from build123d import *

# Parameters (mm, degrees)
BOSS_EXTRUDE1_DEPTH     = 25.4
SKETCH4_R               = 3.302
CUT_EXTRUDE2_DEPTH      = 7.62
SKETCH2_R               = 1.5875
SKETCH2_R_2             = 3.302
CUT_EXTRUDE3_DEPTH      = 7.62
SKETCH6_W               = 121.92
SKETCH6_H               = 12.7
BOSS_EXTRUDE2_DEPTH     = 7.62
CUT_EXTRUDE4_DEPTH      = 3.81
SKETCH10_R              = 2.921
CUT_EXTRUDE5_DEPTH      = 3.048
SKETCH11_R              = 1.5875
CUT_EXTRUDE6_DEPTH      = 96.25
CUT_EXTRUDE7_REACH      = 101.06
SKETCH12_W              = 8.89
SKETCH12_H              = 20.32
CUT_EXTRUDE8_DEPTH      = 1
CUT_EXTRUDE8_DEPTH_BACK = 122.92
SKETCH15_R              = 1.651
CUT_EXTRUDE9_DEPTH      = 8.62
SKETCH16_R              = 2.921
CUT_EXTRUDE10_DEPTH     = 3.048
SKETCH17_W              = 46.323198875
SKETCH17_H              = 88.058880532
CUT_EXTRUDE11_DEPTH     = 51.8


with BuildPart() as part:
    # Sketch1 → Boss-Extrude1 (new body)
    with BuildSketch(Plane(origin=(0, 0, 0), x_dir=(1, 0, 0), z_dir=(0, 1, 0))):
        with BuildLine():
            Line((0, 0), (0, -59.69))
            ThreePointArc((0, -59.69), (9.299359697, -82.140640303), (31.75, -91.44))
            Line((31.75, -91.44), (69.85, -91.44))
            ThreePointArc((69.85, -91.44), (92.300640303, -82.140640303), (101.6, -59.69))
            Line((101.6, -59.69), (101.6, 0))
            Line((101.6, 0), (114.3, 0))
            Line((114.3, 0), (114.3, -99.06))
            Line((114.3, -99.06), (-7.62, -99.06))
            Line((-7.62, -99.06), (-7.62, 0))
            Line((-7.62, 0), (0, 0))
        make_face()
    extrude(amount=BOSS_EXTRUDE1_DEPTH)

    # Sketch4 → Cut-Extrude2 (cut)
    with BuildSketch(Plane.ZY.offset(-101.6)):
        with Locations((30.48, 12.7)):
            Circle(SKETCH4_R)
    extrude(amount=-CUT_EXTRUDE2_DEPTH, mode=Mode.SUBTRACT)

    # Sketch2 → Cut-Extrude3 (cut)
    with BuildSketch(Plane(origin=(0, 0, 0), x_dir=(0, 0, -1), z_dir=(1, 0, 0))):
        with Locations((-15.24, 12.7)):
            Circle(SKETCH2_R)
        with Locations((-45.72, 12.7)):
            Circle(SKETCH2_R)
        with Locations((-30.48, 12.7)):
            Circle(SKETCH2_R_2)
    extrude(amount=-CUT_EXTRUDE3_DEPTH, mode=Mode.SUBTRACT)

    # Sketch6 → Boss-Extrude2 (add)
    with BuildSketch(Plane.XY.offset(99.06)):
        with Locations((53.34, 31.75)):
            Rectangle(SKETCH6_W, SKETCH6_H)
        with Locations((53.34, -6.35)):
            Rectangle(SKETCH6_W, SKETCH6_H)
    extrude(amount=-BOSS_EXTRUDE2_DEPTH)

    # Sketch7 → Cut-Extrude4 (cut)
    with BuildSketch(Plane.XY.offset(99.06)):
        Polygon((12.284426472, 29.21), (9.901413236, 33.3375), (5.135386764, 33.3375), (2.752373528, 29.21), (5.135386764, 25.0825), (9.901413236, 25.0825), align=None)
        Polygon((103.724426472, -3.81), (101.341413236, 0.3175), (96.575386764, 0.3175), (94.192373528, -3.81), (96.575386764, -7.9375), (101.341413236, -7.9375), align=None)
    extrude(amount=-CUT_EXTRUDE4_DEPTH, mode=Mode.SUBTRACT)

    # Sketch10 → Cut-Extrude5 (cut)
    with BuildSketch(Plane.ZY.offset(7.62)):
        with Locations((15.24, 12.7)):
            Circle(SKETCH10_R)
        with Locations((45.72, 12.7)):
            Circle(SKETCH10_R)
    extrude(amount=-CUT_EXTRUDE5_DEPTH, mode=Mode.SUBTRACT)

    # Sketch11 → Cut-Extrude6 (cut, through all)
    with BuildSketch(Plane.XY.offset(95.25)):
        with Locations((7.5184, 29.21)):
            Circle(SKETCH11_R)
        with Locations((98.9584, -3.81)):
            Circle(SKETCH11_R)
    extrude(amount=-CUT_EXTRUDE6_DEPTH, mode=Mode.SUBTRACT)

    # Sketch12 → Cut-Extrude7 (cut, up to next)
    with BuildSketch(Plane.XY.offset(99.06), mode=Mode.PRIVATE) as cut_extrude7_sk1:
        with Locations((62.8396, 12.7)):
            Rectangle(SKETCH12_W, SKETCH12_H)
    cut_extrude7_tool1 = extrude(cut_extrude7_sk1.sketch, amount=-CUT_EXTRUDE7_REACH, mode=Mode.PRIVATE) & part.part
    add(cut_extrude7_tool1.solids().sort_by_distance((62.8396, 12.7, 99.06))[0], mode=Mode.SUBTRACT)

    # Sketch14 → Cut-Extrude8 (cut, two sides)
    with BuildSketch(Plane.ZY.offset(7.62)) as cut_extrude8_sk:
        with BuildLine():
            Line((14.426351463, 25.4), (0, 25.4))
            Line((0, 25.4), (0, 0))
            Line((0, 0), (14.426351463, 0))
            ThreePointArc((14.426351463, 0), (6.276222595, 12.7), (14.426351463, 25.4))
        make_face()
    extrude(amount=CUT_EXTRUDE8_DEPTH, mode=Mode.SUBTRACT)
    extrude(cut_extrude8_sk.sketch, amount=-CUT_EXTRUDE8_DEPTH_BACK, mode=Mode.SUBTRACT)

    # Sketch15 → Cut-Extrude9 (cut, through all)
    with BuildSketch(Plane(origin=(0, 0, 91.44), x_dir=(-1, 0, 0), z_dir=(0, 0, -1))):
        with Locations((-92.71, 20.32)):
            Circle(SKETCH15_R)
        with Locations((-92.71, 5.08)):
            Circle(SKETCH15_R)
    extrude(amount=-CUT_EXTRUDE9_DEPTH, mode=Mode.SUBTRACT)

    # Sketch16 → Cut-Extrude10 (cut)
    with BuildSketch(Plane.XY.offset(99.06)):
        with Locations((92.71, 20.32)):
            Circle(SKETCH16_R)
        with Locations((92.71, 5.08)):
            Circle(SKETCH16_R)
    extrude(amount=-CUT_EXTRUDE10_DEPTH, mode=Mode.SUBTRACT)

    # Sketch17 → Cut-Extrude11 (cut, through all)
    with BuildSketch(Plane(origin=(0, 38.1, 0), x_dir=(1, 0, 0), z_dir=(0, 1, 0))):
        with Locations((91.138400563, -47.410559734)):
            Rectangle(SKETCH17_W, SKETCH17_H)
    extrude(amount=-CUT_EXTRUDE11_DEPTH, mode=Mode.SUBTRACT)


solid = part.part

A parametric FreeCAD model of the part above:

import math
import FreeCAD as App
import Part
import Sketcher

V = App.Vector
Q = App.Units.Quantity


def add_polygon(sketch, points):
    """Adds a closed chain of lines whose ends are joined by coincident constraints."""
    first, n = sketch.GeometryCount, len(points)
    for a, b in zip(points, points[1:] + points[:1]):
        sketch.addGeometry(Part.LineSegment(App.Vector(*a, 0), App.Vector(*b, 0)), False)
    for i in range(n):
        sketch.addConstraint(Sketcher.Constraint("Coincident", first + i, 2, first + (i + 1) % n, 1))

doc = App.newDocument("Part")
params = doc.addObject("Spreadsheet::Sheet", "Params")
for row, (alias, value) in enumerate([
    ("sketch1_radius", "1.25 in"),
    ("sketch1_width", "0.3 in"),
    ("sketch1_width2", "4.8 in"),
    ("sketch1_width3", "0.5 in"),
    ("sketch1_height", "3.9 in"),
    ("pad1_length", "1 in"),
    ("sketch2_diameter", "0.26 in"),
    ("pocket1_length", "0.3 in"),
    ("sketch3_diameter", "0.26 in"),
    ("sketch3_diameter2", "0.125 in"),
    ("pocket2_length", "0.3 in"),
    ("sketch4_width", "4.8 in"),
    ("sketch4_height", "0.5 in"),
    ("pad2_length", "0.3 in"),
    ("pocket3_length", "0.15 in"),
    ("sketch6_diameter", "0.23 in"),
    ("pocket4_length", "0.12 in"),
    ("sketch7_diameter", "0.125 in"),
    ("sketch8_height", "0.8 in"),
    ("sketch8_width", "0.35 in"),
    ("sketch9_width", "1 in"),
    ("sketch9_radius", "0.55 in"),
    ("sketch10_diameter", "0.13 in"),
    ("sketch11_diameter", "0.23 in"),
    ("pocket9_length", "0.12 in"),
], start=1):
    params.set(f"A{row}", alias)
    params.set(f"B{row}", "=" + value)
    params.setAlias(f"B{row}", alias)

body = doc.addObject("PartDesign::Body", "Body")

# Sketch on XZ plane
sketch1 = body.newObject("Sketcher::SketchObject", "Sketch")
sketch1.AttachmentSupport = (doc.getObject("XZ_Plane"), [""])
sketch1.MapMode = "FlatFace"
sketch1.addGeometry([
    Part.LineSegment(V(0, 60, 0), V(0, 0, 0)),  # 0
    Part.LineSegment(V(0, 0, 0), V(-8, 0, 0)),  # 1
    Part.LineSegment(V(-8, 0, 0), V(-8, 99, 0)),  # 2
    Part.LineSegment(V(-8, 99, 0), V(114, 99, 0)),  # 3
    Part.LineSegment(V(114, 99, 0), V(114, 0, 0)),  # 4
    Part.LineSegment(V(114, 0, 0), V(102, 0, 0)),  # 5
    Part.LineSegment(V(102, 0, 0), V(102, 60, 0)),  # 6
    Part.ArcOfCircle(Part.Circle(V(70, 60, 0), V(0, 0, 1), 32), math.radians(0), math.radians(90)),  # 7
    Part.LineSegment(V(70, 91, 0), V(32, 91, 0)),  # 8
    Part.ArcOfCircle(Part.Circle(V(32, 60, 0), V(0, 0, 1), 32), math.radians(90), math.radians(180)),  # 9
], False)
sketch1.addConstraint([
    Sketcher.Constraint("Coincident", 0, 2, 1, 1),
    Sketcher.Constraint("Coincident", 1, 2, 2, 1),
    Sketcher.Constraint("Coincident", 2, 2, 3, 1),
    Sketcher.Constraint("Coincident", 3, 2, 4, 1),
    Sketcher.Constraint("Coincident", 4, 2, 5, 1),
    Sketcher.Constraint("Coincident", 5, 2, 6, 1),
    Sketcher.Constraint("Tangent", 6, 2, 7, 1),
    Sketcher.Constraint("Tangent", 7, 2, 8, 1),
    Sketcher.Constraint("Tangent", 8, 2, 9, 1),
    Sketcher.Constraint("Tangent", 9, 2, 0, 1),
    Sketcher.Constraint("Vertical", 0),
    Sketcher.Constraint("Horizontal", 1),
    Sketcher.Constraint("Vertical", 2),
    Sketcher.Constraint("Horizontal", 3),
    Sketcher.Constraint("Vertical", 4),
    Sketcher.Constraint("Horizontal", 5),
    Sketcher.Constraint("Vertical", 6),
    Sketcher.Constraint("Horizontal", 8),
    Sketcher.Constraint("Coincident", 0, 2, -1, 1),
    Sketcher.Constraint("Equal", 7, 9),
    Sketcher.Constraint("PointOnObject", 4, 2, -1),
    Sketcher.Constraint("Radius", 7, Q("1.25 in")),
    Sketcher.Constraint("DistanceX", 1, 2, 1, 1, Q("0.3 in")),
    Sketcher.Constraint("DistanceX", 3, 1, 3, 2, Q("4.8 in")),
    Sketcher.Constraint("DistanceX", 5, 2, 5, 1, Q("0.5 in")),
    Sketcher.Constraint("DistanceY", 2, 1, 2, 2, Q("3.9 in")),
    Sketcher.Constraint("DistanceY", 0, 2, 0, 1, Q("2.35 in")),
])
sketch1.setExpression("Constraints[21]", "Params.sketch1_radius")
sketch1.setExpression("Constraints[22]", "Params.sketch1_width")
sketch1.setExpression("Constraints[23]", "Params.sketch1_width2")
sketch1.setExpression("Constraints[24]", "Params.sketch1_width3")
sketch1.setExpression("Constraints[25]", "Params.sketch1_height")
pad1 = body.newObject("PartDesign::Pad", "Pad")
pad1.Profile = sketch1
pad1.setExpression("Length", "Params.pad1_length")
pad1.Reversed = True

# Sketch on YZ plane
sketch2 = body.newObject("Sketcher::SketchObject", "Sketch001")
sketch2.AttachmentSupport = (doc.getObject("YZ_Plane"), [""])
sketch2.MapMode = "FlatFace"
sketch2.AttachmentOffset = App.Placement(V(0, 0, 4 * 25.4), App.Rotation())
sketch2.addGeometry(Part.Circle(V(12.7, 30.5, 0), V(0, 0, 1), 3.3), False)
sketch2.addConstraint([
    Sketcher.Constraint("Diameter", 0, Q("0.26 in")),
    Sketcher.Constraint("DistanceX", -1, 1, 0, 3, Q("0.5 in")),
    Sketcher.Constraint("DistanceY", -1, 1, 0, 3, Q("1.2 in")),
])
sketch2.setExpression("Constraints[0]", "Params.sketch2_diameter")
pocket1 = body.newObject("PartDesign::Pocket", "Pocket")
pocket1.Profile = sketch2
pocket1.setExpression("Length", "Params.pocket1_length")
pocket1.Reversed = True

# Sketch on YZ plane
sketch3 = body.newObject("Sketcher::SketchObject", "Sketch002")
sketch3.AttachmentSupport = (doc.getObject("YZ_Plane"), [""])
sketch3.MapMode = "FlatFace"
sketch3.addGeometry([
    Part.Circle(V(12.7, 15.2, 0), V(0, 0, 1), 1.6),
    Part.Circle(V(12.7, 45.7, 0), V(0, 0, 1), 1.6),
    Part.Circle(V(12.7, 30.5, 0), V(0, 0, 1), 3.3),
], False)
sketch3.addConstraint([
    Sketcher.Constraint("Equal", 0, 1),
    Sketcher.Constraint("Vertical", 0, 3, 1, 3),
    Sketcher.Constraint("Vertical", 1, 3, 2, 3),
    Sketcher.Constraint("Diameter", 2, Q("0.26 in")),
    Sketcher.Constraint("Diameter", 0, Q("0.125 in")),
    Sketcher.Constraint("DistanceX", -1, 1, 0, 3, Q("0.5 in")),
    Sketcher.Constraint("DistanceY", -1, 1, 0, 3, Q("0.6 in")),
    Sketcher.Constraint("DistanceY", -1, 1, 1, 3, Q("1.8 in")),
    Sketcher.Constraint("DistanceY", -1, 1, 2, 3, Q("1.2 in")),
])
sketch3.setExpression("Constraints[3]", "Params.sketch3_diameter")
sketch3.setExpression("Constraints[4]", "Params.sketch3_diameter2")
pocket2 = body.newObject("PartDesign::Pocket", "Pocket001")
pocket2.Profile = sketch3
pocket2.setExpression("Length", "Params.pocket2_length")

# Sketch on XY plane
sketch4 = body.newObject("Sketcher::SketchObject", "Sketch003")
sketch4.AttachmentSupport = (doc.getObject("XY_Plane"), [""])
sketch4.MapMode = "FlatFace"
sketch4.AttachmentOffset = App.Placement(V(0, 0, 3.9 * 25.4), App.Rotation())
add_polygon(sketch4, [(-8, 38), (-8, 25), (114, 25), (114, 38)])  # lines 0-3
add_polygon(sketch4, [(-8, 0), (-8, -13), (114, -13), (114, 0)])  # lines 4-7
sketch4.addConstraint([
    Sketcher.Constraint("Vertical", 0),
    Sketcher.Constraint("Horizontal", 1),
    Sketcher.Constraint("Vertical", 2),
    Sketcher.Constraint("Horizontal", 3),
    Sketcher.Constraint("Vertical", 4),
    Sketcher.Constraint("Horizontal", 5),
    Sketcher.Constraint("Vertical", 6),
    Sketcher.Constraint("Horizontal", 7),
    Sketcher.Constraint("PointOnObject", 6, 2, -1),
    Sketcher.Constraint("Vertical", 3, 2, 4, 2),
    Sketcher.Constraint("Vertical", 2, 2, 5, 2),
    Sketcher.Constraint("Equal", 2, 4),
    Sketcher.Constraint("DistanceX", 1, 1, 1, 2, Q("4.8 in")),
    Sketcher.Constraint("DistanceY", 0, 2, 0, 1, Q("0.5 in")),
    Sketcher.Constraint("DistanceY", -1, 1, 0, 2, Q("1 in")),
    Sketcher.Constraint("DistanceX", 0, 2, -1, 1, Q("0.3 in")),
])
sketch4.setExpression("Constraints[20]", "Params.sketch4_width")
sketch4.setExpression("Constraints[21]", "Params.sketch4_height")
pad2 = body.newObject("PartDesign::Pad", "Pad001")
pad2.Profile = sketch4
pad2.setExpression("Length", "Params.pad2_length")
pad2.Reversed = True

# Sketch on XY plane
sketch5 = body.newObject("Sketcher::SketchObject", "Sketch004")
sketch5.AttachmentSupport = (doc.getObject("XY_Plane"), [""])
sketch5.MapMode = "FlatFace"
sketch5.AttachmentOffset = App.Placement(V(0, 0, 3.9 * 25.4), App.Rotation())
add_polygon(sketch5, [(12.3, 29.2), (9.9, 33.3), (5.1, 33.3), (2.8, 29.2), (5.1, 25.1), (9.9, 25.1)])  # lines 0-5
add_polygon(sketch5, [(103.7, -3.8), (101.3, 0.3), (96.6, 0.3), (94.2, -3.8), (96.6, -7.9), (101.3, -7.9)])  # lines 6-11
sketch5.addConstraint([
    Sketcher.Constraint("Horizontal", 1),
    Sketcher.Constraint("Horizontal", 4),
    Sketcher.Constraint("Horizontal", 7),
    Sketcher.Constraint("Horizontal", 10),
    Sketcher.Constraint("Parallel", 0, 3),
    Sketcher.Constraint("Parallel", 2, 5),
    Sketcher.Constraint("Parallel", 3, 6),
    Sketcher.Constraint("Parallel", 5, 8),
    Sketcher.Constraint("Parallel", 6, 9),
    Sketcher.Constraint("Parallel", 8, 11),
    Sketcher.Constraint("Horizontal", 2, 2, 5, 2),
    Sketcher.Constraint("Horizontal", 8, 2, 11, 2),
    Sketcher.Constraint("Vertical", 1, 2, 3, 2),
    Sketcher.Constraint("Vertical", 0, 2, 4, 2),
    Sketcher.Constraint("Vertical", 7, 2, 9, 2),
    Sketcher.Constraint("Equal", 4, 7),
    Sketcher.Constraint("Equal", 5, 6),
    Sketcher.Constraint("Angle", 0, Q("120 deg")),
    Sketcher.Constraint("DistanceX", 4, 2, 6, 2, Q("3.6 in")),
    Sketcher.Constraint("DistanceY", 6, 2, 0, 2, Q("1.3 in")),
    Sketcher.Constraint("DistanceY", -1, 1, 2, 2, Q("1.15 in")),
    Sketcher.Constraint("DistanceY", -1, 1, 0, 2, Q("1.3125 in")),
    Sketcher.Constraint("DistanceX", 1, 2, 1, 1, 4.766026),
    Sketcher.Constraint("DistanceX", -1, 1, 0, 2, 9.901413),
])
pocket3 = body.newObject("PartDesign::Pocket", "Pocket002")
pocket3.Profile = sketch5
pocket3.setExpression("Length", "Params.pocket3_length")

# Sketch on YZ plane
sketch6 = body.newObject("Sketcher::SketchObject", "Sketch005")
sketch6.AttachmentSupport = (doc.getObject("YZ_Plane"), [""])
sketch6.MapMode = "FlatFace"
sketch6.AttachmentOffset = App.Placement(V(0, 0, -0.3 * 25.4), App.Rotation())
sketch6.addGeometry([
    Part.Circle(V(12.7, 15.2, 0), V(0, 0, 1), 2.9),
    Part.Circle(V(12.7, 45.7, 0), V(0, 0, 1), 2.9),
], False)
sketch6.addConstraint([
    Sketcher.Constraint("Equal", 0, 1),
    Sketcher.Constraint("Vertical", 0, 3, 1, 3),
    Sketcher.Constraint("Diameter", 0, Q("0.23 in")),
    Sketcher.Constraint("DistanceX", -1, 1, 0, 3, Q("0.5 in")),
    Sketcher.Constraint("DistanceY", -1, 1, 0, 3, Q("0.6 in")),
    Sketcher.Constraint("DistanceY", -1, 1, 1, 3, Q("1.8 in")),
])
sketch6.setExpression("Constraints[2]", "Params.sketch6_diameter")
pocket4 = body.newObject("PartDesign::Pocket", "Pocket003")
pocket4.Profile = sketch6
pocket4.setExpression("Length", "Params.pocket4_length")
pocket4.Reversed = True

# Sketch on XY plane
sketch7 = body.newObject("Sketcher::SketchObject", "Sketch006")
sketch7.AttachmentSupport = (doc.getObject("XY_Plane"), [""])
sketch7.MapMode = "FlatFace"
sketch7.AttachmentOffset = App.Placement(V(0, 0, 3.75 * 25.4), App.Rotation())
sketch7.addGeometry([
    Part.Circle(V(7.5, 29.2, 0), V(0, 0, 1), 1.6),
    Part.Circle(V(99, -3.8, 0), V(0, 0, 1), 1.6),
], False)
sketch7.addConstraint([
    Sketcher.Constraint("Equal", 0, 1),
    Sketcher.Constraint("Diameter", 0, Q("0.125 in")),
    Sketcher.Constraint("DistanceX", 0, 3, 1, 3, Q("3.6 in")),
    Sketcher.Constraint("DistanceY", 1, 3, 0, 3, Q("1.3 in")),
    Sketcher.Constraint("DistanceY", -1, 1, 0, 3, Q("1.15 in")),
    Sketcher.Constraint("DistanceX", -1, 1, 0, 3, Q("0.296 in")),
])
sketch7.setExpression("Constraints[1]", "Params.sketch7_diameter")
pocket5 = body.newObject("PartDesign::Pocket", "Pocket004")
pocket5.Profile = sketch7
pocket5.Type = "ThroughAll"

# Sketch on XY plane
sketch8 = body.newObject("Sketcher::SketchObject", "Sketch007")
sketch8.AttachmentSupport = (doc.getObject("XY_Plane"), [""])
sketch8.MapMode = "FlatFace"
sketch8.AttachmentOffset = App.Placement(V(0, 0, 3.9 * 25.4), App.Rotation())
add_polygon(sketch8, [(58, 23), (58, 3), (67, 3), (67, 23)])  # lines 0-3
sketch8.addConstraint([
    Sketcher.Constraint("Vertical", 0),
    Sketcher.Constraint("Horizontal", 1),
    Sketcher.Constraint("Vertical", 2),
    Sketcher.Constraint("Horizontal", 3),
    Sketcher.Constraint("DistanceY", 0, 2, 0, 1, Q("0.8 in")),
    Sketcher.Constraint("DistanceX", 1, 1, 1, 2, Q("0.35 in")),
    Sketcher.Constraint("DistanceY", -1, 1, 0, 2, Q("0.1 in")),
    Sketcher.Constraint("DistanceX", -1, 1, 0, 2, Q("2.299 in")),
])
sketch8.setExpression("Constraints[8]", "Params.sketch8_height")
sketch8.setExpression("Constraints[9]", "Params.sketch8_width")
pocket6 = body.newObject("PartDesign::Pocket", "Pocket005")
pocket6.Profile = sketch8
pocket6.Type = "UpToFirst"

# Sketch on YZ plane
sketch9 = body.newObject("Sketcher::SketchObject", "Sketch008")
sketch9.AttachmentSupport = (doc.getObject("YZ_Plane"), [""])
sketch9.MapMode = "FlatFace"
sketch9.AttachmentOffset = App.Placement(V(0, 0, -0.3 * 25.4), App.Rotation())
sketch9.addGeometry([
    Part.LineSegment(V(25, 14, 0), V(25, 0, 0)),
    Part.LineSegment(V(25, 0, 0), V(0, 0, 0)),
    Part.LineSegment(V(0, 0, 0), V(0, 14, 0)),
    Part.ArcOfCircle(Part.Circle(V(13, 20, 0), V(0, 0, 1), 14), math.radians(-155), math.radians(-25)),
], False)
sketch9.addConstraint([
    Sketcher.Constraint("Coincident", 0, 2, 1, 1),
    Sketcher.Constraint("Coincident", 1, 2, 2, 1),
    Sketcher.Constraint("Coincident", 2, 2, 3, 1),
    Sketcher.Constraint("Coincident", 3, 2, 0, 1),
    Sketcher.Constraint("Vertical", 0),
    Sketcher.Constraint("Horizontal", 1),
    Sketcher.Constraint("Vertical", 2),
    Sketcher.Constraint("Coincident", 1, 2, -1, 1),
    Sketcher.Constraint("Horizontal", 2, 2, 3, 2),
    Sketcher.Constraint("DistanceX", 1, 2, 1, 1, Q("1 in")),
    Sketcher.Constraint("Radius", 3, Q("0.55 in")),
    Sketcher.Constraint("DistanceY", 0, 2, 0, 1, 14.426351),
])
sketch9.setExpression("Constraints[9]", "Params.sketch9_width")
sketch9.setExpression("Constraints[10]", "Params.sketch9_radius")
pocket7 = body.newObject("PartDesign::Pocket", "Pocket006")
pocket7.Profile = sketch9
pocket7.Type = "ThroughAll"
pocket7.Midplane = True

# Sketch on XY plane
sketch10 = body.newObject("Sketcher::SketchObject", "Sketch009")
sketch10.AttachmentSupport = (doc.getObject("XY_Plane"), [""])
sketch10.MapMode = "FlatFace"
sketch10.AttachmentOffset = App.Placement(V(0, 0, 3.6 * 25.4), App.Rotation())
sketch10.addGeometry([
    Part.Circle(V(92.7, 20.3, 0), V(0, 0, 1), 1.7),
    Part.Circle(V(92.7, 5.1, 0), V(0, 0, 1), 1.7),
], False)
sketch10.addConstraint([
    Sketcher.Constraint("Equal", 0, 1),
    Sketcher.Constraint("Vertical", 0, 3, 1, 3),
    Sketcher.Constraint("Diameter", 0, Q("0.13 in")),
    Sketcher.Constraint("DistanceY", -1, 1, 0, 3, Q("0.8 in")),
    Sketcher.Constraint("DistanceY", -1, 1, 1, 3, Q("0.2 in")),
    Sketcher.Constraint("DistanceX", -1, 1, 0, 3, Q("3.65 in")),
])
sketch10.setExpression("Constraints[2]", "Params.sketch10_diameter")
pocket8 = body.newObject("PartDesign::Pocket", "Pocket007")
pocket8.Profile = sketch10
pocket8.Type = "ThroughAll"
pocket8.Reversed = True

# Sketch on XY plane
sketch11 = body.newObject("Sketcher::SketchObject", "Sketch010")
sketch11.AttachmentSupport = (doc.getObject("XY_Plane"), [""])
sketch11.MapMode = "FlatFace"
sketch11.AttachmentOffset = App.Placement(V(0, 0, 3.9 * 25.4), App.Rotation())
sketch11.addGeometry([
    Part.Circle(V(92.7, 20.3, 0), V(0, 0, 1), 2.9),
    Part.Circle(V(92.7, 5.1, 0), V(0, 0, 1), 2.9),
], False)
sketch11.addConstraint([
    Sketcher.Constraint("Equal", 0, 1),
    Sketcher.Constraint("Vertical", 0, 3, 1, 3),
    Sketcher.Constraint("Diameter", 0, Q("0.23 in")),
    Sketcher.Constraint("DistanceY", -1, 1, 0, 3, Q("0.8 in")),
    Sketcher.Constraint("DistanceY", -1, 1, 1, 3, Q("0.2 in")),
    Sketcher.Constraint("DistanceX", -1, 1, 0, 3, Q("3.65 in")),
])
sketch11.setExpression("Constraints[2]", "Params.sketch11_diameter")
pocket9 = body.newObject("PartDesign::Pocket", "Pocket008")
pocket9.Profile = sketch11
pocket9.setExpression("Length", "Params.pocket9_length")

# Sketch on XZ plane
sketch12 = body.newObject("Sketcher::SketchObject", "Sketch011")
sketch12.AttachmentSupport = (doc.getObject("XZ_Plane"), [""])
sketch12.MapMode = "FlatFace"
sketch12.AttachmentOffset = App.Placement(V(0, 0, -1.5 * 25.4), App.Rotation())
add_polygon(sketch12, [(68, 3), (68, 91), (114, 91), (114, 3)])  # lines 0-3
sketch12.addConstraint([
    Sketcher.Constraint("Vertical", 0),
    Sketcher.Constraint("Horizontal", 1),
    Sketcher.Constraint("Vertical", 2),
    Sketcher.Constraint("Horizontal", 3),
    Sketcher.Constraint("DistanceY", -1, 1, 0, 2, Q("3.6 in")),
    Sketcher.Constraint("DistanceX", -1, 1, 1, 2, Q("4.5 in")),
    Sketcher.Constraint("DistanceX", 1, 1, 1, 2, 46.323199),
    Sketcher.Constraint("DistanceY", 0, 1, 0, 2, 88.058881),
])
pocket10 = body.newObject("PartDesign::Pocket", "Pocket009")
pocket10.Profile = sketch12
pocket10.Type = "ThroughAll"
pocket10.Reversed = True

doc.recompute()
